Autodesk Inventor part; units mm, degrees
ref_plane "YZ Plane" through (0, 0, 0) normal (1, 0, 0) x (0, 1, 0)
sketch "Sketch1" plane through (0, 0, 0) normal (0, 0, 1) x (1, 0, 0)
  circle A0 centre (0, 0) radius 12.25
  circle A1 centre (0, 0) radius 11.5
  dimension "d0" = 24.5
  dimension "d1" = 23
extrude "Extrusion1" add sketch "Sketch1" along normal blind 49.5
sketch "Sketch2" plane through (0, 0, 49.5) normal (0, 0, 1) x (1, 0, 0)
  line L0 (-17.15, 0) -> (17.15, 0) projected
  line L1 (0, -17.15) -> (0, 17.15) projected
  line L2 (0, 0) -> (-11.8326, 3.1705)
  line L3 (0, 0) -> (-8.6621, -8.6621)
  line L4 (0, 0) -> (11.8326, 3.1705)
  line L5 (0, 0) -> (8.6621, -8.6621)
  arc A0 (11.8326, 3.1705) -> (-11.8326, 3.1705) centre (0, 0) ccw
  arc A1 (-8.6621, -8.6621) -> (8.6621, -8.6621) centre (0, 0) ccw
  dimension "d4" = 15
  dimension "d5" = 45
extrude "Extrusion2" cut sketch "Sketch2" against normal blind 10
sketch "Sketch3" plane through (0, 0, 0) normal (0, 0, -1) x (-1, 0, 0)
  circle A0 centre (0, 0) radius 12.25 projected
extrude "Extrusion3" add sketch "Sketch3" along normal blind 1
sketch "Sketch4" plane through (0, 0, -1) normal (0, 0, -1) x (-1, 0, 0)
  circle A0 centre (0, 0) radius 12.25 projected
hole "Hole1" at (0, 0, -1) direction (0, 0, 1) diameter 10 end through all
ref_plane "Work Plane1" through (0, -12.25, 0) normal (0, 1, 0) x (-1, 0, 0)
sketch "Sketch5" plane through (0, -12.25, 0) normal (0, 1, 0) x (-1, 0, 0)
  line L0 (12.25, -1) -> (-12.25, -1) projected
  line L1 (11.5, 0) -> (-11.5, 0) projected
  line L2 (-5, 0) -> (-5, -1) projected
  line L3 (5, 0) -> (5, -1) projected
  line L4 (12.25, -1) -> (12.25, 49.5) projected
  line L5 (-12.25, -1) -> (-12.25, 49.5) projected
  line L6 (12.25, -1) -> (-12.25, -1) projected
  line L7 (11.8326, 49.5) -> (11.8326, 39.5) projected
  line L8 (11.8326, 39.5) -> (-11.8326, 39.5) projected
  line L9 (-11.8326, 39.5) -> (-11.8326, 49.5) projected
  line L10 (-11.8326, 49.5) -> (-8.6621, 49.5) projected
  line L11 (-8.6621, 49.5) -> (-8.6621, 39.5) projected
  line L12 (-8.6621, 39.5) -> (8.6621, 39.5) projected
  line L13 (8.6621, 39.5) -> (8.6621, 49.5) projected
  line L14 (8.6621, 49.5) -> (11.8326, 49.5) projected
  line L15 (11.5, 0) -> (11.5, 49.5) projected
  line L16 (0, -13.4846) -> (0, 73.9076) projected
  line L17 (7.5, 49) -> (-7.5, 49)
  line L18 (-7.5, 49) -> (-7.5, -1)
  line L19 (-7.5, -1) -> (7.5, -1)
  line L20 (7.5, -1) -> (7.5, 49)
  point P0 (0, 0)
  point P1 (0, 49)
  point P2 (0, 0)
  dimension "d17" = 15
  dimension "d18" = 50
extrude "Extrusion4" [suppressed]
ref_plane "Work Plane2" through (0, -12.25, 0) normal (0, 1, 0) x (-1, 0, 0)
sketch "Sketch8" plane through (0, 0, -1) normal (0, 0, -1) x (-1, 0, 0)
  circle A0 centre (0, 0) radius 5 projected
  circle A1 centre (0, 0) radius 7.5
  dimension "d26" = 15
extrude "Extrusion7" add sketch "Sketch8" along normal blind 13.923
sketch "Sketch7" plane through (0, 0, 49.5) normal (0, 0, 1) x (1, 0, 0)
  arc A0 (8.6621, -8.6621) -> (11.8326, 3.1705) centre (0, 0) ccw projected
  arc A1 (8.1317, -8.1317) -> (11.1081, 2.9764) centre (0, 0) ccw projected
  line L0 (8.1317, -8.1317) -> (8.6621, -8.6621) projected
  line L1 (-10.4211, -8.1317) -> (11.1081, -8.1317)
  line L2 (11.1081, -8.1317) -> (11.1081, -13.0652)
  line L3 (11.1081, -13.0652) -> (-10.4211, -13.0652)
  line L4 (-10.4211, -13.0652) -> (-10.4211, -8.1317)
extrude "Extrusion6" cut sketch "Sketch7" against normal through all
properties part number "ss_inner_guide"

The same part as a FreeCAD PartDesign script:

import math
import FreeCAD as App
import Part
import Sketcher

V = App.Vector
Q = App.Units.Quantity


def add_polygon(sketch, points):
    """Adds a closed chain of lines whose ends are joined by coincident constraints."""
    first, n = sketch.GeometryCount, len(points)
    for a, b in zip(points, points[1:] + points[:1]):
        sketch.addGeometry(Part.LineSegment(App.Vector(*a, 0), App.Vector(*b, 0)), False)
    for i in range(n):
        sketch.addConstraint(Sketcher.Constraint("Coincident", first + i, 2, first + (i + 1) % n, 1))

doc = App.newDocument("Part")
body = doc.addObject("PartDesign::Body", "Body")

# Sketch on XY plane
sketch1 = body.newObject("Sketcher::SketchObject", "Sketch")
sketch1.AttachmentSupport = (doc.getObject("XY_Plane"), [""])
sketch1.MapMode = "FlatFace"
sketch1.addGeometry([
    Part.Circle(V(0, 0, 0), V(0, 0, 1), 12),
    Part.Circle(V(0, 0, 0), V(0, 0, 1), 12),
], False)
sketch1.addConstraint([
    Sketcher.Constraint("Coincident", 0, 3, -1, 1),
    Sketcher.Constraint("Coincident", 1, 3, -1, 1),
    Sketcher.Constraint("Diameter", 1, Q("23 mm")),
    Sketcher.Constraint("Diameter", 0, Q("24.5 mm")),
])
pad1 = body.newObject("PartDesign::Pad", "Pad")
pad1.Profile = sketch1
pad1.Length = 49.5

# Sketch on XY plane
sketch2 = body.newObject("Sketcher::SketchObject", "Sketch001")
sketch2.AttachmentSupport = (doc.getObject("XY_Plane"), [""])
sketch2.MapMode = "FlatFace"
sketch2.AttachmentOffset = App.Placement(V(0, 0, 49.5), App.Rotation())
sketch2.addGeometry([
    Part.ArcOfCircle(Part.Circle(V(0, 0, 0), V(0, 0, 1), 12), math.radians(-135), math.radians(-45)),  # 0
    Part.LineSegment(V(9, -9, 0), V(0, 0, 0)),  # 1
    Part.LineSegment(V(0, 0, 0), V(-9, -9, 0)),  # 2
    Part.LineSegment(V(-12, 3, 0), V(0, 0, 0)),  # 3
    Part.LineSegment(V(0, 0, 0), V(12, 3, 0)),  # 4
    Part.ArcOfCircle(Part.Circle(V(0, 0, 0), V(0, 0, 1), 12), math.radians(15), math.radians(165)),  # 5
], False)
sketch2.addConstraint([
    Sketcher.Constraint("Coincident", 0, 2, 1, 1),
    Sketcher.Constraint("Coincident", 1, 2, 2, 1),
    Sketcher.Constraint("Coincident", 2, 2, 0, 1),
    Sketcher.Constraint("Coincident", 3, 2, 4, 1),
    Sketcher.Constraint("Coincident", 4, 2, 5, 1),
    Sketcher.Constraint("Coincident", 5, 2, 3, 1),
    Sketcher.Constraint("Coincident", 0, 3, -1, 1),
    Sketcher.Constraint("Coincident", 5, 3, -1, 1),
    Sketcher.Constraint("Coincident", 1, 2, -1, 1),
    Sketcher.Constraint("Coincident", 3, 2, -1, 1),
    Sketcher.Constraint("Equal", 0, 5),
    Sketcher.Constraint("Perpendicular", 1, 2),
    Sketcher.Constraint("Horizontal", 0, 2, 2, 2),
    Sketcher.Constraint("Horizontal", 4, 2, 5, 2),
    Sketcher.Constraint("Angle", 3, Q("-14.9998 deg")),
    Sketcher.Constraint("Radius", 0, Q("12.25 mm")),
])
pocket1 = body.newObject("PartDesign::Pocket", "Pocket")
pocket1.Profile = sketch2
pocket1.Length = 10

# Sketch on XY plane
sketch3 = body.newObject("Sketcher::SketchObject", "Sketch002")
sketch3.AttachmentSupport = (doc.getObject("XY_Plane"), [""])
sketch3.MapMode = "FlatFace"
sketch3.addGeometry(Part.Circle(V(0, 0, 0), V(0, 0, 1), 12), False)
sketch3.addConstraint([
    Sketcher.Constraint("Coincident", 0, 3, -1, 1),
    Sketcher.Constraint("Diameter", 0, Q("24.5 mm")),
])
pad2 = body.newObject("PartDesign::Pad", "Pad001")
pad2.Profile = sketch3
pad2.Length = 1
pad2.Reversed = True

# Sketch on XY plane
sketch4 = body.newObject("Sketcher::SketchObject", "Sketch003")
sketch4.AttachmentSupport = (doc.getObject("XY_Plane"), [""])
sketch4.MapMode = "FlatFace"
sketch4.AttachmentOffset = App.Placement(V(0, 0, -1), App.Rotation())
sketch4.addGeometry(Part.Circle(V(0, 0, 0), V(0, 0, 1), 5), False)
sketch4.addConstraint([
    Sketcher.Constraint("Coincident", 0, 3, -1, 1),
    Sketcher.Constraint("Diameter", 0, Q("10 mm")),
])
doc.recompute()
hole = body.newObject("PartDesign::Hole", "Hole")
hole.Profile = sketch4
hole.ThreadType = "None"
hole.Diameter = 10
hole.DepthType = "ThroughAll"
hole.Reversed = True

# Sketch on XY plane
sketch5 = body.newObject("Sketcher::SketchObject", "Sketch004")
sketch5.AttachmentSupport = (doc.getObject("XY_Plane"), [""])
sketch5.MapMode = "FlatFace"
sketch5.AttachmentOffset = App.Placement(V(0, 0, -1), App.Rotation())
sketch5.addGeometry([
    Part.Circle(V(0, 0, 0), V(0, 0, 1), 8),
    Part.Circle(V(0, 0, 0), V(0, 0, 1), 5),
], False)
sketch5.addConstraint([
    Sketcher.Constraint("Coincident", 0, 3, -1, 1),
    Sketcher.Constraint("Coincident", 1, 3, -1, 1),
    Sketcher.Constraint("Diameter", 0, Q("15 mm")),
    Sketcher.Constraint("Diameter", 1, Q("10 mm")),
])
pad3 = body.newObject("PartDesign::Pad", "Pad002")
pad3.Profile = sketch5
pad3.Length = 13.923
pad3.Reversed = True

# Sketch on XY plane
sketch6 = body.newObject("Sketcher::SketchObject", "Sketch005")
sketch6.AttachmentSupport = (doc.getObject("XY_Plane"), [""])
sketch6.MapMode = "FlatFace"
sketch6.AttachmentOffset = App.Placement(V(0, 0, 49.5), App.Rotation())
add_polygon(sketch6, [(-10.4, -8.1), (-10.4, -13.1), (11.1, -13.1), (11.1, -8.1)])  # lines 0-3
sketch6.addConstraint([
    Sketcher.Constraint("Vertical", 0),
    Sketcher.Constraint("Horizontal", 1),
    Sketcher.Constraint("Vertical", 2),
    Sketcher.Constraint("Horizontal", 3),
    Sketcher.Constraint("DistanceX", 1, 1, 1, 2, Q("21.5292 mm")),
    Sketcher.Constraint("DistanceY", 0, 2, 0, 1, Q("4.9335 mm")),
    Sketcher.Constraint("DistanceX", 0, 2, -1, 1, Q("10.421 mm")),
    Sketcher.Constraint("DistanceY", 0, 2, -1, 1, Q("13.0652 mm")),
])
pocket2 = body.newObject("PartDesign::Pocket", "Pocket001")
pocket2.Profile = sketch6
pocket2.Type = "ThroughAll"

doc.recompute()
